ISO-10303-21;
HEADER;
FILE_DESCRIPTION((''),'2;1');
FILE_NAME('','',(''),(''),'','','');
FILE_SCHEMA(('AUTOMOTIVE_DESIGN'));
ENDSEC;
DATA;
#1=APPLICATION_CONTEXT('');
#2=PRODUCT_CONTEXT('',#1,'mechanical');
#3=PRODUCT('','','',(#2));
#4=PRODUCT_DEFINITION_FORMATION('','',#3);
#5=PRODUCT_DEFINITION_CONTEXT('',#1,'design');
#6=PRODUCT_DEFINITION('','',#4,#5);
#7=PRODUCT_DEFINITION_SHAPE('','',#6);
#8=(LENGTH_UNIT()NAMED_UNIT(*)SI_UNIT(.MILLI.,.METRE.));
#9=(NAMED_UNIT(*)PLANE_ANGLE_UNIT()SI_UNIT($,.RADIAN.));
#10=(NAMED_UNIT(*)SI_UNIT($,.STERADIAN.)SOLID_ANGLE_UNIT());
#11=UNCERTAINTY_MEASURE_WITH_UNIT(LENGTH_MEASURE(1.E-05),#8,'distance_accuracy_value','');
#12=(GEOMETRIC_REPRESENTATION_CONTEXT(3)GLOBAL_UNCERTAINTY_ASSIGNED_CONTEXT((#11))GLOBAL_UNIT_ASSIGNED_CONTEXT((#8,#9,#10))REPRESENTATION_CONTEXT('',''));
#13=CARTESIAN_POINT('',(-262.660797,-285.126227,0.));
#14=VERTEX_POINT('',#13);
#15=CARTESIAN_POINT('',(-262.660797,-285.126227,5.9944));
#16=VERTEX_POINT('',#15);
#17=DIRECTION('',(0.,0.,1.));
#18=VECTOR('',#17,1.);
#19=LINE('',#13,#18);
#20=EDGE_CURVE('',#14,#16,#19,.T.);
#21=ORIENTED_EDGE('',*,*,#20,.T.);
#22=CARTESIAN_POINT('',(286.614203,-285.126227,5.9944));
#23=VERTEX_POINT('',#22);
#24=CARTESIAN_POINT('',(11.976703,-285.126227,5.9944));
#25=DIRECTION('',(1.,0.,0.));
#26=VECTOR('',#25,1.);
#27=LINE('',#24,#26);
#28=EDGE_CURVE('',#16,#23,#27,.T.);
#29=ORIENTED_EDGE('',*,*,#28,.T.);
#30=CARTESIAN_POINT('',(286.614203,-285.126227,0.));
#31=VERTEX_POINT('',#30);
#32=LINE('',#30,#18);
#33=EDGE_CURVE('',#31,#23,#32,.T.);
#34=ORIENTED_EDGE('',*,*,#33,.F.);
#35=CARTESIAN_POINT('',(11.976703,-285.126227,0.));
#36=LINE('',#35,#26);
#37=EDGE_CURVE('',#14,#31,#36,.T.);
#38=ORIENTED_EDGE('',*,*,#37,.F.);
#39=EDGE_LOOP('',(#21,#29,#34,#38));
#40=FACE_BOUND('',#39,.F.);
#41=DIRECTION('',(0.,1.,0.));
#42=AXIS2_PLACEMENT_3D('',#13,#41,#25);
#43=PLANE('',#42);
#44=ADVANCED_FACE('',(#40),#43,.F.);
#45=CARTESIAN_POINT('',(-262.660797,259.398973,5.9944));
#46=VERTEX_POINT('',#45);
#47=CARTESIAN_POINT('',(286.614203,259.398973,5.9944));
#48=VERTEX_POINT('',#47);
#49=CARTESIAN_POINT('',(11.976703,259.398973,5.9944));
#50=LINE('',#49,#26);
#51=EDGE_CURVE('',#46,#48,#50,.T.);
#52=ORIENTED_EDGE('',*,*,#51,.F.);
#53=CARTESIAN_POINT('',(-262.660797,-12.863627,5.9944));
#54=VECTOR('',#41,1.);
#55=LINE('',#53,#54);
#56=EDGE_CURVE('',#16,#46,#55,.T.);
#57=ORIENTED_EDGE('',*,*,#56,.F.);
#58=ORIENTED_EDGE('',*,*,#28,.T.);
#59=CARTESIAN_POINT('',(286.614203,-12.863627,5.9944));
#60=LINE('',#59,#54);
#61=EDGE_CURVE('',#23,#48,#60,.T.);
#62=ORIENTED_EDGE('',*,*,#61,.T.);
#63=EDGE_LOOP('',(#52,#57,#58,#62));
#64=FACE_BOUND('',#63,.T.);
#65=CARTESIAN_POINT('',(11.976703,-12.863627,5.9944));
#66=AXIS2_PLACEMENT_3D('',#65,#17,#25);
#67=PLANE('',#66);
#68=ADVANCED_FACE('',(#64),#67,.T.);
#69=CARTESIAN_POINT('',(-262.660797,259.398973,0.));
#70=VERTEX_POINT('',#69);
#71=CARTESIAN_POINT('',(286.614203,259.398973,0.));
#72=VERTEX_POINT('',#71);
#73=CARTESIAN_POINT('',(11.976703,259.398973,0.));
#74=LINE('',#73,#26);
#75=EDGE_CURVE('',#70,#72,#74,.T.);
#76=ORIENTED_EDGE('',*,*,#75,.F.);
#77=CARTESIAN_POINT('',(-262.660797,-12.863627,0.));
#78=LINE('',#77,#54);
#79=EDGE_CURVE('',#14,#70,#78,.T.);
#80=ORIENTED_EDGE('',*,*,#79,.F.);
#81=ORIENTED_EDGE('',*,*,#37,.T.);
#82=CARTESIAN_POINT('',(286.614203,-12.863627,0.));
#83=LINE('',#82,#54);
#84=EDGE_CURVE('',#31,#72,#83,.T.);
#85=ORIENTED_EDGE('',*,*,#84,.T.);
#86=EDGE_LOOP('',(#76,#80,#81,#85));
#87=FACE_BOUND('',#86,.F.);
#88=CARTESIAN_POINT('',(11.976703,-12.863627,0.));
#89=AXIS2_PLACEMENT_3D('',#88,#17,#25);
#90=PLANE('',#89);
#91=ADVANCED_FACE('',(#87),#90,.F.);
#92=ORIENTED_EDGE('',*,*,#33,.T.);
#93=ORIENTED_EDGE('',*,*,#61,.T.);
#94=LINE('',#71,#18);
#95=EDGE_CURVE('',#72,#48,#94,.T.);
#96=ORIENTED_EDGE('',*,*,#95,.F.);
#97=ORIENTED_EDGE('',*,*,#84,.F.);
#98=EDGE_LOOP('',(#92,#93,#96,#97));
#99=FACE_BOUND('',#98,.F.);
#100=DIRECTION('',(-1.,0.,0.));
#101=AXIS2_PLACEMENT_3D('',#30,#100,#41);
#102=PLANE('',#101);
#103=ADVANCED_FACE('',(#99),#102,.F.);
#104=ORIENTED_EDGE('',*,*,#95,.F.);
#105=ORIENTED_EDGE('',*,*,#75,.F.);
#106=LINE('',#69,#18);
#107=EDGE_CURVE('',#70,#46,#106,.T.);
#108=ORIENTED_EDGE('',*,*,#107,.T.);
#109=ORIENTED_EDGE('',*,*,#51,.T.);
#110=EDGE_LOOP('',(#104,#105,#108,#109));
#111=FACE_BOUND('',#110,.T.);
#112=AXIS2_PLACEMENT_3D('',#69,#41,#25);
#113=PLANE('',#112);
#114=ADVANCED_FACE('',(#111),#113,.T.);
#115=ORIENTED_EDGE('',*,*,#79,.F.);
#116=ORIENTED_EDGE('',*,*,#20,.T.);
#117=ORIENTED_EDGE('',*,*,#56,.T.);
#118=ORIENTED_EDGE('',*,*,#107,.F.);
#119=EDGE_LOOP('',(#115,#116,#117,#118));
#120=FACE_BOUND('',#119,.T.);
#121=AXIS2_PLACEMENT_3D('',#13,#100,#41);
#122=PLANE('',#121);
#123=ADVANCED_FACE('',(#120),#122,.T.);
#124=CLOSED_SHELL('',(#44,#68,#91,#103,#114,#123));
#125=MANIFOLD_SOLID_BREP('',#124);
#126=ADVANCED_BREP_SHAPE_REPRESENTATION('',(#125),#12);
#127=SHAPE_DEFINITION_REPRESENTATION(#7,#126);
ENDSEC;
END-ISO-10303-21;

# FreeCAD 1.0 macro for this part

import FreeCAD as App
import Part
import Sketcher
Q = App.Units.Quantity


def add_polygon(sketch, points):
    """Adds a closed chain of lines whose ends are joined by coincident constraints."""
    first, n = sketch.GeometryCount, len(points)
    for a, b in zip(points, points[1:] + points[:1]):
        sketch.addGeometry(Part.LineSegment(App.Vector(*a, 0), App.Vector(*b, 0)), False)
    for i in range(n):
        sketch.addConstraint(Sketcher.Constraint("Coincident", first + i, 2, first + (i + 1) % n, 1))

doc = App.newDocument("Part")
body = doc.addObject("PartDesign::Body", "Body")

sketch1 = doc.addObject("Sketcher::SketchObject", "Sketch")
body.addObject(sketch1)
sketch1.AttachmentSupport = (doc.XY_Plane, [""])
sketch1.MapMode = "FlatFace"
add_polygon(sketch1, [(-263, 259), (-263, -285), (287, -285), (287, 259)])
sketch1.addConstraint([
    Sketcher.Constraint("Vertical", 0),
    Sketcher.Constraint("Horizontal", 1),
    Sketcher.Constraint("Vertical", 2),
    Sketcher.Constraint("Horizontal", 3),
    Sketcher.Constraint("DistanceX", 1, 1, 1, 2, Q("21.625 in")),
    Sketcher.Constraint("DistanceY", 0, 2, 0, 1, Q("21.438 in")),
    Sketcher.Constraint("DistanceX", 0, 2, -1, 1, Q("262.660797 mm")),
    Sketcher.Constraint("DistanceY", 0, 2, -1, 1, Q("285.126227 mm")),
])
pad1 = doc.addObject("PartDesign::Pad", "Pad")
body.addObject(pad1)
pad1.Profile = sketch1
pad1.Length = Q("0.236 in")

doc.recompute()
